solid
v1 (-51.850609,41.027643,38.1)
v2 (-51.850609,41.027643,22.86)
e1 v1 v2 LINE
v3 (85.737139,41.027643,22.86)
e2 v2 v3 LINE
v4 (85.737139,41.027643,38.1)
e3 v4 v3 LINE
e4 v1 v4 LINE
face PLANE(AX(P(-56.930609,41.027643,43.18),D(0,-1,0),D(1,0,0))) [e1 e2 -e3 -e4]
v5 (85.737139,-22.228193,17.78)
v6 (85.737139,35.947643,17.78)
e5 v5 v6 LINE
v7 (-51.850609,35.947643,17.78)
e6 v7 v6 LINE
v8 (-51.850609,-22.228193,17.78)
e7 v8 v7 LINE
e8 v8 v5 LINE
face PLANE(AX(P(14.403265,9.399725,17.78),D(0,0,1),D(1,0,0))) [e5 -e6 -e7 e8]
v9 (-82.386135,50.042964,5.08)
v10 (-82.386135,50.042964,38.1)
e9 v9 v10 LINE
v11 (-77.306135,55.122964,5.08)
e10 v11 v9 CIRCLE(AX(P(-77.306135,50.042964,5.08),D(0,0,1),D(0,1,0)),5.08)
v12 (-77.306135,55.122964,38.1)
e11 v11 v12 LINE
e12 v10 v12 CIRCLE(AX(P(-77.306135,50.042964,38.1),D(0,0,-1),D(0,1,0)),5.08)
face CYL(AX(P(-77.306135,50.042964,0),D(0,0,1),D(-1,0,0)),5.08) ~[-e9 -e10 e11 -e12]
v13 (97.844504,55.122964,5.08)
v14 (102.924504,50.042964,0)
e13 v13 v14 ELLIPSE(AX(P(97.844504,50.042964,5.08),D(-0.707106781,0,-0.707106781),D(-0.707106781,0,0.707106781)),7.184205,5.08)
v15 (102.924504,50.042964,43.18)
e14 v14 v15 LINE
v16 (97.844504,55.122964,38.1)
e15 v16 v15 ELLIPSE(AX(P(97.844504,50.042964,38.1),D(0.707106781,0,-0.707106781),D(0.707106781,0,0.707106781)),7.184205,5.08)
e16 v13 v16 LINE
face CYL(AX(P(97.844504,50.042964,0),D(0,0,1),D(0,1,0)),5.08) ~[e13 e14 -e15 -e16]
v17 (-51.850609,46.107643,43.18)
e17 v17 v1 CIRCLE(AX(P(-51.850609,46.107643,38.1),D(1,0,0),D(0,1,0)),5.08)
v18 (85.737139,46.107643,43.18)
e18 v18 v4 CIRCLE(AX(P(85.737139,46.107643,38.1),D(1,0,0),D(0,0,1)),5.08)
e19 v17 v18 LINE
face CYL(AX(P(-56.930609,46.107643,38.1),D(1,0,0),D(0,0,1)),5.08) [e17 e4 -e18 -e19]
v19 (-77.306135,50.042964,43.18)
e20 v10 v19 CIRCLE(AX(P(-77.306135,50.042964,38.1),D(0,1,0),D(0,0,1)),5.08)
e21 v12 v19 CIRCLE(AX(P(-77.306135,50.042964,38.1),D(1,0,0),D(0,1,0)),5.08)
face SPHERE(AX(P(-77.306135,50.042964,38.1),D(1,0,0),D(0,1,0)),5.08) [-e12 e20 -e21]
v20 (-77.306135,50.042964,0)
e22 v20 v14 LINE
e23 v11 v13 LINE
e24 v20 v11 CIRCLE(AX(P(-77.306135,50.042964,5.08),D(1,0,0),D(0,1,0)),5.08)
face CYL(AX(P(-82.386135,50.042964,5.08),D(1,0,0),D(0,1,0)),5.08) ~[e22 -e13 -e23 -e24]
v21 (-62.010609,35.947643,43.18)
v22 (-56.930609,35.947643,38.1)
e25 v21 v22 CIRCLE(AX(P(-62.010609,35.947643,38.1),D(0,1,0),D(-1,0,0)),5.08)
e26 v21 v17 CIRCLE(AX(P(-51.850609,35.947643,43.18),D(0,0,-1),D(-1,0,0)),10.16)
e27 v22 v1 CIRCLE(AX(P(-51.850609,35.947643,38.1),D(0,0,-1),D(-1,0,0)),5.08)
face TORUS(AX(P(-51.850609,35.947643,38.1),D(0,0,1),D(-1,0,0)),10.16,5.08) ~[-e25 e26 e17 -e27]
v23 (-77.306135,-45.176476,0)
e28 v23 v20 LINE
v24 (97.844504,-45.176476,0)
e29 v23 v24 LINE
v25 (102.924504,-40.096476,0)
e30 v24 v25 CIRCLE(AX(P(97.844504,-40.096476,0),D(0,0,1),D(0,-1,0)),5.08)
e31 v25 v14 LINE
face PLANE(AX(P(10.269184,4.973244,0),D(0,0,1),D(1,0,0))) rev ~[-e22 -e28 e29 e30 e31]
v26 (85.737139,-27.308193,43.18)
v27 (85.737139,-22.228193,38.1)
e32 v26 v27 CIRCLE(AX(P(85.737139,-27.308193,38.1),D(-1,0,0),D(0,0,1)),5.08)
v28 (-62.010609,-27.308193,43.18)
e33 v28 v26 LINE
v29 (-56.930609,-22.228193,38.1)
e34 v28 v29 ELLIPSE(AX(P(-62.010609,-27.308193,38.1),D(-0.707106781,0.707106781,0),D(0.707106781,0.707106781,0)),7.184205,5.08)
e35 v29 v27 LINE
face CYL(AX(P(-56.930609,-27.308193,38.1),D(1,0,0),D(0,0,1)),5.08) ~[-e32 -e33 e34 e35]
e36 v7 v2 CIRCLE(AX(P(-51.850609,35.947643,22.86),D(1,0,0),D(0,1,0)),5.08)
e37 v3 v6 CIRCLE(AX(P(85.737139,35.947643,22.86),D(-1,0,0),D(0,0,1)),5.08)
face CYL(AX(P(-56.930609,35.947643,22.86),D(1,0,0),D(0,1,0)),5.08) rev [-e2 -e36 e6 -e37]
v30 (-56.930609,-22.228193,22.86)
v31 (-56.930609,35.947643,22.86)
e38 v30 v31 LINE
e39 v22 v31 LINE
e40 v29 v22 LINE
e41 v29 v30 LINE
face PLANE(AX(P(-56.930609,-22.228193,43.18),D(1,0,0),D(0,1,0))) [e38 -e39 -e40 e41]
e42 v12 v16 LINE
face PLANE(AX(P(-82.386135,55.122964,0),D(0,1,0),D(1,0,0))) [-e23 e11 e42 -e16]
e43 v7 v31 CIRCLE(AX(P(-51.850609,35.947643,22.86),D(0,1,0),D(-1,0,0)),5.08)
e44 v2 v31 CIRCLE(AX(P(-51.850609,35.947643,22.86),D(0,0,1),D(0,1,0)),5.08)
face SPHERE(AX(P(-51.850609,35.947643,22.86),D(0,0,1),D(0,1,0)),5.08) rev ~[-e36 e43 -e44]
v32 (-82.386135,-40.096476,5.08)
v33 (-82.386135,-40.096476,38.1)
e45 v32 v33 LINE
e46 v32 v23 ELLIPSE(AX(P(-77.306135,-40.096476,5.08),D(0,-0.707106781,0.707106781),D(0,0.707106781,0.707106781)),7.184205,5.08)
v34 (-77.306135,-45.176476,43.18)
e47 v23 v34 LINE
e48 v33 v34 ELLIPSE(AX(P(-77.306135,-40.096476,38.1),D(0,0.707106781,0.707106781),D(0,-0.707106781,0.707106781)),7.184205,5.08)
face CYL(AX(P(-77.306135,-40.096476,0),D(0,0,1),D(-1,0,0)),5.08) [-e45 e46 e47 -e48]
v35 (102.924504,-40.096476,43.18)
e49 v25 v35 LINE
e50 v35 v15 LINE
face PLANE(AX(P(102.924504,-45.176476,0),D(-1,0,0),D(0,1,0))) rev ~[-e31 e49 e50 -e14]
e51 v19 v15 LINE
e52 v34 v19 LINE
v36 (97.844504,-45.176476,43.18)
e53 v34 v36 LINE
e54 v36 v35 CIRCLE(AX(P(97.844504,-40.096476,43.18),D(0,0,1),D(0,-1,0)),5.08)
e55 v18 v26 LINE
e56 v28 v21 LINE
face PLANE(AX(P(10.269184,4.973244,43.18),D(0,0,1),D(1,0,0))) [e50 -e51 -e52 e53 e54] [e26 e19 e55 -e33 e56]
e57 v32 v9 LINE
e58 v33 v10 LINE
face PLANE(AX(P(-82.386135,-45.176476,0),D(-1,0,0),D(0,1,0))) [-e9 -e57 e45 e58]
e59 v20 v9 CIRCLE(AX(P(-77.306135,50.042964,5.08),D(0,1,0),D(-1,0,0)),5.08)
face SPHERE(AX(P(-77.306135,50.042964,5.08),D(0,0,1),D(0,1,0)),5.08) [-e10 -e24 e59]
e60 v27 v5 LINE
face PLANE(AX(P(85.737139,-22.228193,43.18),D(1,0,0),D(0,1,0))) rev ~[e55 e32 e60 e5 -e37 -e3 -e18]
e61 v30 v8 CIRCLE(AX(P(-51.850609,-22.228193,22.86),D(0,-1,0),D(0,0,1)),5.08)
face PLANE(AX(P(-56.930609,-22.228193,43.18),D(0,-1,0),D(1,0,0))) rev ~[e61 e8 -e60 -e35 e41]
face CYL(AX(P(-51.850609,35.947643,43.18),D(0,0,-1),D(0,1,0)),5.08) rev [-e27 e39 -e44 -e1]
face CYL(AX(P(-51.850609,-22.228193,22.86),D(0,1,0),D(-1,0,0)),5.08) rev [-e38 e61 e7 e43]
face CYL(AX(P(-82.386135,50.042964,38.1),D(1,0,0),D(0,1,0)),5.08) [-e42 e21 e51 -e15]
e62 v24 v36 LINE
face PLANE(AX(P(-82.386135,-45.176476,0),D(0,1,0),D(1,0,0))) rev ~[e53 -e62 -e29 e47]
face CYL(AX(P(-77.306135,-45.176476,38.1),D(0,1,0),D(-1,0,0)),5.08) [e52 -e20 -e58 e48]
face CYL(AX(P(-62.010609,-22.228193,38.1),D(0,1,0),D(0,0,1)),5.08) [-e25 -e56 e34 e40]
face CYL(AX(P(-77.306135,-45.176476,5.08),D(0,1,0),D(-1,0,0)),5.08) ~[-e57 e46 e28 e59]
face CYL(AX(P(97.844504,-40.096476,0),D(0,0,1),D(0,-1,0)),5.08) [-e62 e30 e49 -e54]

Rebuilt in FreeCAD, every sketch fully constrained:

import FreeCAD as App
import Part
import Sketcher
Q = App.Units.Quantity


def edges_at(feature, points):
    """Names of the edges that pass closest to the given points."""
    edges = feature.Shape.Edges
    near = lambda p: min(range(len(edges)), key=lambda i: edges[i].distToShape(Part.Vertex(*p))[0])
    return sorted({f"Edge{near(p) + 1}" for p in points})

doc = App.newDocument("Part")
body = doc.addObject("PartDesign::Body", "Body")

# Sketch on XY plane
sketch1 = doc.addObject("Sketcher::SketchObject", "Sketch")
body.addObject(sketch1)
sketch1.AttachmentSupport = (doc.XY_Plane, [""])
sketch1.MapMode = "FlatFace"
sketch1.addGeometry([
    Part.LineSegment(App.Vector(-82, 55, 0), App.Vector(-82, -45, 0)),
    Part.LineSegment(App.Vector(-82, -45, 0), App.Vector(103, -45, 0)),
    Part.LineSegment(App.Vector(103, -45, 0), App.Vector(103, 55, 0)),
    Part.LineSegment(App.Vector(103, 55, 0), App.Vector(-82, 55, 0)),
], False)
sketch1.addConstraint([
    Sketcher.Constraint("Coincident", 0, 2, 1, 1),
    Sketcher.Constraint("Coincident", 1, 2, 2, 1),
    Sketcher.Constraint("Coincident", 2, 2, 3, 1),
    Sketcher.Constraint("Coincident", 3, 2, 0, 1),
    Sketcher.Constraint("Vertical", 0),
    Sketcher.Constraint("Horizontal", 1),
    Sketcher.Constraint("Vertical", 2),
    Sketcher.Constraint("Horizontal", 3),
    Sketcher.Constraint("DistanceX", 1, 1, 1, 2, 185.310639),
    Sketcher.Constraint("DistanceY", 0, 2, 0, 1, 100.29944),
    Sketcher.Constraint("DistanceX", 0, 2, -1, 1, 82.386135),
    Sketcher.Constraint("DistanceY", 0, 2, -1, 1, 45.176476),
])
pad1 = doc.addObject("PartDesign::Pad", "Pad")
body.addObject(pad1)
pad1.Profile = sketch1
pad1.Length = Q("1.7 in")

# Sketch on XY plane
sketch2 = doc.addObject("Sketcher::SketchObject", "Sketch001")
body.addObject(sketch2)
sketch2.AttachmentSupport = (doc.XY_Plane, [""])
sketch2.MapMode = "FlatFace"
sketch2.AttachmentOffset = App.Placement(App.Vector(0, 0, 1.7 * 25.4), App.Rotation())
sketch2.addGeometry([
    Part.LineSegment(App.Vector(-57, 41, 0), App.Vector(-57, -22, 0)),
    Part.LineSegment(App.Vector(-57, -22, 0), App.Vector(86, -22, 0)),
    Part.LineSegment(App.Vector(86, -22, 0), App.Vector(86, 41, 0)),
    Part.LineSegment(App.Vector(86, 41, 0), App.Vector(-57, 41, 0)),
], False)
sketch2.addConstraint([
    Sketcher.Constraint("Coincident", 0, 2, 1, 1),
    Sketcher.Constraint("Coincident", 1, 2, 2, 1),
    Sketcher.Constraint("Coincident", 2, 2, 3, 1),
    Sketcher.Constraint("Coincident", 3, 2, 0, 1),
    Sketcher.Constraint("Vertical", 0),
    Sketcher.Constraint("Horizontal", 1),
    Sketcher.Constraint("Vertical", 2),
    Sketcher.Constraint("Horizontal", 3),
    Sketcher.Constraint("DistanceX", 1, 1, 1, 2, 142.667748),
    Sketcher.Constraint("DistanceY", 0, 2, 0, 1, 63.255836),
    Sketcher.Constraint("DistanceX", 0, 2, -1, 1, 56.930609),
    Sketcher.Constraint("DistanceY", 0, 2, -1, 1, 22.228193),
])
pocket1 = doc.addObject("PartDesign::Pocket", "Pocket")
body.addObject(pocket1)
pocket1.Profile = sketch2
pocket1.Length = Q("1 in")
doc.recompute()

fillet = doc.addObject("PartDesign::Fillet", "Fillet")
body.addObject(fillet)
fillet.Base = (pocket1, edges_at(pocket1, [
    (-82.386, -45.176, 21.59),
    (102.925, -45.176, 21.59),
    (102.925, 55.123, 21.59),
    (10.269, 55.123, 43.18),
    (14.403, 41.028, 43.18),
    (-82.386, 55.123, 21.59),
    (-56.931, 41.028, 30.48),
    (14.403, -22.228, 43.18),
    (14.403, 41.028, 17.78),
    (-56.931, 9.4, 43.18),
    (-56.931, 9.4, 17.78),
    (10.269, 55.123, 0),
    (-82.386, 4.973, 43.18),
    (-82.386, 4.973, 0),
]))
fillet.Radius = Q("0.2 in")

doc.recompute()
